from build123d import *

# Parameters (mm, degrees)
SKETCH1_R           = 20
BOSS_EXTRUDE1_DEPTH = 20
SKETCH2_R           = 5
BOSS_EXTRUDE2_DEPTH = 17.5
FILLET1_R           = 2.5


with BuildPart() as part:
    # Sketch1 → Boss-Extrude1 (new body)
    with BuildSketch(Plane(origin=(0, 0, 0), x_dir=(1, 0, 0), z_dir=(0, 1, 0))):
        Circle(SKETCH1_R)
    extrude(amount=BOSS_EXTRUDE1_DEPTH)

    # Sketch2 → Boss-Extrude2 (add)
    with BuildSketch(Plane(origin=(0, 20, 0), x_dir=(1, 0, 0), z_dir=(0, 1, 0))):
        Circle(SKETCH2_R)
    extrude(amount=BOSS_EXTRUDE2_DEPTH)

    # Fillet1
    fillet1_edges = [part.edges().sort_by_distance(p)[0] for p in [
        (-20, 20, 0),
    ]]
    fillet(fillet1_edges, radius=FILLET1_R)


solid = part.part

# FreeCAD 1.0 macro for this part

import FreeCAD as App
import Part
import Sketcher

V = App.Vector


def edges_at(feature, points):
    """Names of the edges that pass closest to the given points."""
    edges = feature.Shape.Edges
    near = lambda p: min(range(len(edges)), key=lambda i: edges[i].distToShape(Part.Vertex(*p))[0])
    return sorted({f"Edge{near(p) + 1}" for p in points})

doc = App.newDocument("Part")
body = doc.addObject("PartDesign::Body", "Body")

# Sketch on XZ plane
sketch1 = body.newObject("Sketcher::SketchObject", "Sketch")
sketch1.AttachmentSupport = (doc.getObject("XZ_Plane"), [""])
sketch1.MapMode = "FlatFace"
sketch1.addGeometry(Part.Circle(V(0, 0, 0), V(0, 0, 1), 20), False)
sketch1.addConstraint(Sketcher.Constraint("Coincident", 0, 3, -1, 1))
sketch1.addConstraint(Sketcher.Constraint("Diameter", 0, 40.0))
pad1 = body.newObject("PartDesign::Pad", "Pad")
pad1.Profile = sketch1
pad1.Length = 20
pad1.Reversed = True

# Sketch on XZ plane
sketch2 = body.newObject("Sketcher::SketchObject", "Sketch001")
sketch2.AttachmentSupport = (doc.getObject("XZ_Plane"), [""])
sketch2.MapMode = "FlatFace"
sketch2.AttachmentOffset = App.Placement(V(0, 0, -20), App.Rotation())
sketch2.addGeometry(Part.Circle(V(0, 0, 0), V(0, 0, 1), 5), False)
sketch2.addConstraint(Sketcher.Constraint("Coincident", 0, 3, -1, 1))
sketch2.addConstraint(Sketcher.Constraint("Diameter", 0, 10.0))
pad2 = body.newObject("PartDesign::Pad", "Pad001")
pad2.Profile = sketch2
pad2.Length = 17.5
pad2.Reversed = True
doc.recompute()

fillet = body.newObject("PartDesign::Fillet", "Fillet")
fillet.Base = (pad2, edges_at(pad2, [(-20, 20, 0)]))
fillet.Radius = 2.5

doc.recompute()
